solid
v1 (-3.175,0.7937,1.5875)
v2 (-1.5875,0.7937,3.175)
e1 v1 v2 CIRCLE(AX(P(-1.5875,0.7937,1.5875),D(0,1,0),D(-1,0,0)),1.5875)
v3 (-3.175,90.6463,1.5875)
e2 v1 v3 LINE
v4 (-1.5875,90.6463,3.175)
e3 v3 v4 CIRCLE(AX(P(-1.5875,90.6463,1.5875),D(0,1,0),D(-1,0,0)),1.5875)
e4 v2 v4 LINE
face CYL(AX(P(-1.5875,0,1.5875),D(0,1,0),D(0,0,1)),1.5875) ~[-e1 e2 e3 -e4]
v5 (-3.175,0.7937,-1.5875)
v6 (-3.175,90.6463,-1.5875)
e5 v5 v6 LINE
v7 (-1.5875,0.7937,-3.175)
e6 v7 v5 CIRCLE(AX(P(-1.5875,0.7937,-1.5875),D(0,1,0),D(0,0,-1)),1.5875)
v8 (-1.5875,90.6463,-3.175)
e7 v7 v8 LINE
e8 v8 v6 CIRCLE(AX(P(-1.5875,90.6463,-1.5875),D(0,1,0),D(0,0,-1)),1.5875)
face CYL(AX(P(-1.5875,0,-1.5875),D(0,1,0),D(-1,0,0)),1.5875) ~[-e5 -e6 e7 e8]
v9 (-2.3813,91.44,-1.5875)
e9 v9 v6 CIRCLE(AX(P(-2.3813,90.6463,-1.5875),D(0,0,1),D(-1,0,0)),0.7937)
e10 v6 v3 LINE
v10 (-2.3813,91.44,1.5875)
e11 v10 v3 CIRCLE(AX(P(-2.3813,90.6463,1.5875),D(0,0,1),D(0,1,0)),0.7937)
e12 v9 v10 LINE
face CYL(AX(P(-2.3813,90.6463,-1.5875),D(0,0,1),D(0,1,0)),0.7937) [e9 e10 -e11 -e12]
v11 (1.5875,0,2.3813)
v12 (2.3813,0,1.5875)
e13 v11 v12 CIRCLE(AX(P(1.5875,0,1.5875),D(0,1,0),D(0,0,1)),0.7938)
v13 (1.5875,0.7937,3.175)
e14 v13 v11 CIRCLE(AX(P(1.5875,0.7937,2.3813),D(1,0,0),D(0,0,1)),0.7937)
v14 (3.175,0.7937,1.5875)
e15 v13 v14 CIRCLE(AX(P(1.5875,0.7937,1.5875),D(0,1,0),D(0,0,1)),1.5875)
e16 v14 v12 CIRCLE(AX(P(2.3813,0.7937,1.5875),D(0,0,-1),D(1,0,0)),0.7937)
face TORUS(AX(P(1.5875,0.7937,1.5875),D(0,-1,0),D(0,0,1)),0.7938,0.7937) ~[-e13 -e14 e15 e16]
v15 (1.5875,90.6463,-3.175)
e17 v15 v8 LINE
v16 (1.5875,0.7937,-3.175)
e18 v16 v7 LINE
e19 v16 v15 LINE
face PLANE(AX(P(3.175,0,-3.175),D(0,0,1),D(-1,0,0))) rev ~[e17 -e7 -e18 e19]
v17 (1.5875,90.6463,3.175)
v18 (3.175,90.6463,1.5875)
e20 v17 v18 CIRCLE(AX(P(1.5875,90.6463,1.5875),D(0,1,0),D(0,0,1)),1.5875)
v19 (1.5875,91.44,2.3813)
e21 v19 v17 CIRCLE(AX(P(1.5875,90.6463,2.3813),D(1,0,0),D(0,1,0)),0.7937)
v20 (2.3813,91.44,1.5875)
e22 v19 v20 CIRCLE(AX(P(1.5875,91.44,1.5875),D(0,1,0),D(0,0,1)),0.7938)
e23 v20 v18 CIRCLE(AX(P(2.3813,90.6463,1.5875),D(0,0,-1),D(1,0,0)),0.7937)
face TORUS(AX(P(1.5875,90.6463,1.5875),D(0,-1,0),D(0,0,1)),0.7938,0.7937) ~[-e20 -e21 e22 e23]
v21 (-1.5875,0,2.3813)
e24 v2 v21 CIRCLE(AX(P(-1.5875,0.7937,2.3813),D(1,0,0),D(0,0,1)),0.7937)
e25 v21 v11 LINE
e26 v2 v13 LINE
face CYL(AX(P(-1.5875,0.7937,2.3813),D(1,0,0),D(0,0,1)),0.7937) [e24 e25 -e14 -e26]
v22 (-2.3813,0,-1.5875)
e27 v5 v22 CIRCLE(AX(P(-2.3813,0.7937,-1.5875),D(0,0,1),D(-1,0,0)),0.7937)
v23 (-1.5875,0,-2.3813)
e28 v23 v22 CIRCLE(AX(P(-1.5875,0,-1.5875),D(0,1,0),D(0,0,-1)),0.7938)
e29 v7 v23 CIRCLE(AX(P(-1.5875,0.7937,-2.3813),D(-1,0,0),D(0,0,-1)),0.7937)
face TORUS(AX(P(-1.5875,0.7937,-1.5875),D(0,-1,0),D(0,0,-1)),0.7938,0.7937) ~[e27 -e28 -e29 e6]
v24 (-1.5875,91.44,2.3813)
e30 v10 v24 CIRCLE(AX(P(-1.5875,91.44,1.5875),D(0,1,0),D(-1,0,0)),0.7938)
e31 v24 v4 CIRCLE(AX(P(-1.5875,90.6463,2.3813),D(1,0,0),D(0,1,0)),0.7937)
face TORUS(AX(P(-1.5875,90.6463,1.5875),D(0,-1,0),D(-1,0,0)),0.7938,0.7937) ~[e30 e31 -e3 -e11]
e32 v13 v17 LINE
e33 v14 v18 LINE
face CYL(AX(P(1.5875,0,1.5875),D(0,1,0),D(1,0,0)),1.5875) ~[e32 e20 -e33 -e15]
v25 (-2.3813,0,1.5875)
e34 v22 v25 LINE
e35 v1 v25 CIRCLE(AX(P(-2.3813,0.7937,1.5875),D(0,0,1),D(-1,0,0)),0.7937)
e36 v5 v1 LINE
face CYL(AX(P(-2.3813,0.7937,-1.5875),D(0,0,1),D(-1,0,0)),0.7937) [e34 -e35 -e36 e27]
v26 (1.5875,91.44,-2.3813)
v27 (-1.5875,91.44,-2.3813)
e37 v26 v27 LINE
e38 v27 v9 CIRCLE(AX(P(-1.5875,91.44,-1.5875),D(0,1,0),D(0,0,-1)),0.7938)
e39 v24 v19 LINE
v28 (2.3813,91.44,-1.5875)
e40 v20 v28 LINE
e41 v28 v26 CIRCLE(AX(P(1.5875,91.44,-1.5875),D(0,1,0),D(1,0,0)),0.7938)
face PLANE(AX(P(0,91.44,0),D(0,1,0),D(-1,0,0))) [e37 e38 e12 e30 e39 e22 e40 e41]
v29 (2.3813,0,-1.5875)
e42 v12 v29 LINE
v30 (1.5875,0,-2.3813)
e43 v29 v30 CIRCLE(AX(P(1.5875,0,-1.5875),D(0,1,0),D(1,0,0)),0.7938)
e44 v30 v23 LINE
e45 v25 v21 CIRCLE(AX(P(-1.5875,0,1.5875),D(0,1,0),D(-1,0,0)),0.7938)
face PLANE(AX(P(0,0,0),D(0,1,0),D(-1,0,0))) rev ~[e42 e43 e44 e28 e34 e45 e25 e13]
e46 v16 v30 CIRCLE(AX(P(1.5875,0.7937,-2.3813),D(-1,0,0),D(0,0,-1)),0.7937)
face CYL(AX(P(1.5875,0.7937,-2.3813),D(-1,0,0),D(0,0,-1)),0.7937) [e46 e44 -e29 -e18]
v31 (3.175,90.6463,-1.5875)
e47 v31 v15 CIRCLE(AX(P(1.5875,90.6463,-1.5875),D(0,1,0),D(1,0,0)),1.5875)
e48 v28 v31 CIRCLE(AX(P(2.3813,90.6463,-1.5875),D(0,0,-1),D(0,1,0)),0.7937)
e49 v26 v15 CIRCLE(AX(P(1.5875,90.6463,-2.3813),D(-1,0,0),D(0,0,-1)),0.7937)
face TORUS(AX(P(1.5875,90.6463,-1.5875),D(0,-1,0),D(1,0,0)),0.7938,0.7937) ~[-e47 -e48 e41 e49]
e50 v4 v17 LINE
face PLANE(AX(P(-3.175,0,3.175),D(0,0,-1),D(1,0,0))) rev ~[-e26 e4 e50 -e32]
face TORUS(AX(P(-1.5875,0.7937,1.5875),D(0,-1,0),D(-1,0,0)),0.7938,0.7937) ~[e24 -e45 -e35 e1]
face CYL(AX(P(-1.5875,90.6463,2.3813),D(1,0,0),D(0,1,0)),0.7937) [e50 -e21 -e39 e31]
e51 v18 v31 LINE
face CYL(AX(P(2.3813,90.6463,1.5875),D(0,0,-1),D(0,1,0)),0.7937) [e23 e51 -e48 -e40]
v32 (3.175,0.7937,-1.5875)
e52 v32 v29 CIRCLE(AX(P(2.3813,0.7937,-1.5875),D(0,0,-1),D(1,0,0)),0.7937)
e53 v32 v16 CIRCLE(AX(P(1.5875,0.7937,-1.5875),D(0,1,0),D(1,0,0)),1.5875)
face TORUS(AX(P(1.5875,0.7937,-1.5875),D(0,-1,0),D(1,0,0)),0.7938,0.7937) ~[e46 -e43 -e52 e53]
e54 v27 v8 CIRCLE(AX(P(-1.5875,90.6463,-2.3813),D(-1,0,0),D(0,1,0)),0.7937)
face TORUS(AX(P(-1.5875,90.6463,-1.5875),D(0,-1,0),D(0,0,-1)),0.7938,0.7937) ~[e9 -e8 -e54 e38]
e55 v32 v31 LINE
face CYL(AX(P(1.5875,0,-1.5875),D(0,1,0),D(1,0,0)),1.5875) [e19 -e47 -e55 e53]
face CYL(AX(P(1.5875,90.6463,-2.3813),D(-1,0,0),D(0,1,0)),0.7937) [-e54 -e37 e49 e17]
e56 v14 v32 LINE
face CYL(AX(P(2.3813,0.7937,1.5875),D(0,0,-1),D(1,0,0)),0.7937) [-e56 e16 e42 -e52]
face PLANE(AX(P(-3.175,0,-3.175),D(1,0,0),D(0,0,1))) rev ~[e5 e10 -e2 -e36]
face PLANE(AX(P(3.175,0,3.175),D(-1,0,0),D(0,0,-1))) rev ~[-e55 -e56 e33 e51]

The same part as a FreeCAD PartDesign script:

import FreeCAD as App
import Part
import Sketcher
from FreeCAD import Vector
Q = App.Units.Quantity


def edges_at(feature, points):
    """Names of the edges that pass closest to the given points."""
    edges = feature.Shape.Edges
    near = lambda p: min(range(len(edges)), key=lambda i: edges[i].distToShape(Part.Vertex(*p))[0])
    return sorted({f"Edge{near(p) + 1}" for p in points})


def add_polygon(sketch, points):
    """Adds a closed chain of lines whose ends are joined by coincident constraints."""
    first, n = sketch.GeometryCount, len(points)
    for a, b in zip(points, points[1:] + points[:1]):
        sketch.addGeometry(Part.LineSegment(App.Vector(*a, 0), App.Vector(*b, 0)), False)
    for i in range(n):
        sketch.addConstraint(Sketcher.Constraint("Coincident", first + i, 2, first + (i + 1) % n, 1))

doc = App.newDocument("Part")
params = doc.addObject("Spreadsheet::Sheet", "Params")
for row, (alias, value) in enumerate([
    ("sketch1_width", "0.25 in"),
    ("pad1_length", "3.6 in"),
    ("fillet_radius", "0.0625 in"),
    ("fillet2_radius", "0.031248 in"),
], start=1):
    params.set(f"A{row}", alias)
    params.set(f"B{row}", "=" + value)
    params.setAlias(f"B{row}", alias)

body = doc.addObject("PartDesign::Body", "Body")

sketch1 = body.newObject("Sketcher::SketchObject", "Sketch")
sketch1.AttachmentSupport = (doc.getObject("XZ_Plane"), [""])
sketch1.MapMode = "FlatFace"
add_polygon(sketch1, [(3, 3), (3, -3), (-3, -3), (-3, 3)])
sketch1.addConstraint([
    Sketcher.Constraint("Vertical", 0),
    Sketcher.Constraint("Horizontal", 1),
    Sketcher.Constraint("Vertical", 2),
    Sketcher.Constraint("Horizontal", 3),
    Sketcher.Constraint("Symmetric", 0, 2, 2, 2, -1, 1),
    Sketcher.Constraint("Equal", 3, 0),
    Sketcher.Constraint("DistanceX", 1, 2, 1, 1, Q("0.25 in")),
])
sketch1.setExpression("Constraints[10]", "Params.sketch1_width")
pad1 = body.newObject("PartDesign::Pad", "Pad")
pad1.Profile = sketch1
pad1.setExpression("Length", "Params.pad1_length")
pad1.Reversed = True
doc.recompute()

fillet = body.newObject("PartDesign::Fillet", "Fillet")
fillet.Base = (pad1, edges_at(pad1, [
    (3.175, 45.72, 3.175),
    (3.175, 45.72, -3.175),
    (-3.175, 45.72, -3.175),
    (-3.175, 45.72, 3.175),
]))
fillet.setExpression("Radius", "Params.fillet_radius")
doc.recompute()

fillet2 = body.newObject("PartDesign::Fillet", "Fillet001")
fillet2.Base = (fillet, edges_at(fillet, [
    (3.175, 0, 0),
    (2.71, 0, -2.71),
    (0, 0, -3.175),
    (-2.71, 0, -2.71),
    (-3.175, 0, 0),
    (-2.71, 0, 2.71),
    (0, 0, 3.175),
    (2.71, 0, 2.71),
    (0, 91.44, 3.175),
    (-2.71, 91.44, 2.71),
    (-3.175, 91.44, 0),
    (-2.71, 91.44, -2.71),
    (0, 91.44, -3.175),
    (2.71, 91.44, -2.71),
    (3.175, 91.44, 0),
    (2.71, 91.44, 2.71),
]))
fillet2.setExpression("Radius", "Params.fillet2_radius")

doc.recompute()
